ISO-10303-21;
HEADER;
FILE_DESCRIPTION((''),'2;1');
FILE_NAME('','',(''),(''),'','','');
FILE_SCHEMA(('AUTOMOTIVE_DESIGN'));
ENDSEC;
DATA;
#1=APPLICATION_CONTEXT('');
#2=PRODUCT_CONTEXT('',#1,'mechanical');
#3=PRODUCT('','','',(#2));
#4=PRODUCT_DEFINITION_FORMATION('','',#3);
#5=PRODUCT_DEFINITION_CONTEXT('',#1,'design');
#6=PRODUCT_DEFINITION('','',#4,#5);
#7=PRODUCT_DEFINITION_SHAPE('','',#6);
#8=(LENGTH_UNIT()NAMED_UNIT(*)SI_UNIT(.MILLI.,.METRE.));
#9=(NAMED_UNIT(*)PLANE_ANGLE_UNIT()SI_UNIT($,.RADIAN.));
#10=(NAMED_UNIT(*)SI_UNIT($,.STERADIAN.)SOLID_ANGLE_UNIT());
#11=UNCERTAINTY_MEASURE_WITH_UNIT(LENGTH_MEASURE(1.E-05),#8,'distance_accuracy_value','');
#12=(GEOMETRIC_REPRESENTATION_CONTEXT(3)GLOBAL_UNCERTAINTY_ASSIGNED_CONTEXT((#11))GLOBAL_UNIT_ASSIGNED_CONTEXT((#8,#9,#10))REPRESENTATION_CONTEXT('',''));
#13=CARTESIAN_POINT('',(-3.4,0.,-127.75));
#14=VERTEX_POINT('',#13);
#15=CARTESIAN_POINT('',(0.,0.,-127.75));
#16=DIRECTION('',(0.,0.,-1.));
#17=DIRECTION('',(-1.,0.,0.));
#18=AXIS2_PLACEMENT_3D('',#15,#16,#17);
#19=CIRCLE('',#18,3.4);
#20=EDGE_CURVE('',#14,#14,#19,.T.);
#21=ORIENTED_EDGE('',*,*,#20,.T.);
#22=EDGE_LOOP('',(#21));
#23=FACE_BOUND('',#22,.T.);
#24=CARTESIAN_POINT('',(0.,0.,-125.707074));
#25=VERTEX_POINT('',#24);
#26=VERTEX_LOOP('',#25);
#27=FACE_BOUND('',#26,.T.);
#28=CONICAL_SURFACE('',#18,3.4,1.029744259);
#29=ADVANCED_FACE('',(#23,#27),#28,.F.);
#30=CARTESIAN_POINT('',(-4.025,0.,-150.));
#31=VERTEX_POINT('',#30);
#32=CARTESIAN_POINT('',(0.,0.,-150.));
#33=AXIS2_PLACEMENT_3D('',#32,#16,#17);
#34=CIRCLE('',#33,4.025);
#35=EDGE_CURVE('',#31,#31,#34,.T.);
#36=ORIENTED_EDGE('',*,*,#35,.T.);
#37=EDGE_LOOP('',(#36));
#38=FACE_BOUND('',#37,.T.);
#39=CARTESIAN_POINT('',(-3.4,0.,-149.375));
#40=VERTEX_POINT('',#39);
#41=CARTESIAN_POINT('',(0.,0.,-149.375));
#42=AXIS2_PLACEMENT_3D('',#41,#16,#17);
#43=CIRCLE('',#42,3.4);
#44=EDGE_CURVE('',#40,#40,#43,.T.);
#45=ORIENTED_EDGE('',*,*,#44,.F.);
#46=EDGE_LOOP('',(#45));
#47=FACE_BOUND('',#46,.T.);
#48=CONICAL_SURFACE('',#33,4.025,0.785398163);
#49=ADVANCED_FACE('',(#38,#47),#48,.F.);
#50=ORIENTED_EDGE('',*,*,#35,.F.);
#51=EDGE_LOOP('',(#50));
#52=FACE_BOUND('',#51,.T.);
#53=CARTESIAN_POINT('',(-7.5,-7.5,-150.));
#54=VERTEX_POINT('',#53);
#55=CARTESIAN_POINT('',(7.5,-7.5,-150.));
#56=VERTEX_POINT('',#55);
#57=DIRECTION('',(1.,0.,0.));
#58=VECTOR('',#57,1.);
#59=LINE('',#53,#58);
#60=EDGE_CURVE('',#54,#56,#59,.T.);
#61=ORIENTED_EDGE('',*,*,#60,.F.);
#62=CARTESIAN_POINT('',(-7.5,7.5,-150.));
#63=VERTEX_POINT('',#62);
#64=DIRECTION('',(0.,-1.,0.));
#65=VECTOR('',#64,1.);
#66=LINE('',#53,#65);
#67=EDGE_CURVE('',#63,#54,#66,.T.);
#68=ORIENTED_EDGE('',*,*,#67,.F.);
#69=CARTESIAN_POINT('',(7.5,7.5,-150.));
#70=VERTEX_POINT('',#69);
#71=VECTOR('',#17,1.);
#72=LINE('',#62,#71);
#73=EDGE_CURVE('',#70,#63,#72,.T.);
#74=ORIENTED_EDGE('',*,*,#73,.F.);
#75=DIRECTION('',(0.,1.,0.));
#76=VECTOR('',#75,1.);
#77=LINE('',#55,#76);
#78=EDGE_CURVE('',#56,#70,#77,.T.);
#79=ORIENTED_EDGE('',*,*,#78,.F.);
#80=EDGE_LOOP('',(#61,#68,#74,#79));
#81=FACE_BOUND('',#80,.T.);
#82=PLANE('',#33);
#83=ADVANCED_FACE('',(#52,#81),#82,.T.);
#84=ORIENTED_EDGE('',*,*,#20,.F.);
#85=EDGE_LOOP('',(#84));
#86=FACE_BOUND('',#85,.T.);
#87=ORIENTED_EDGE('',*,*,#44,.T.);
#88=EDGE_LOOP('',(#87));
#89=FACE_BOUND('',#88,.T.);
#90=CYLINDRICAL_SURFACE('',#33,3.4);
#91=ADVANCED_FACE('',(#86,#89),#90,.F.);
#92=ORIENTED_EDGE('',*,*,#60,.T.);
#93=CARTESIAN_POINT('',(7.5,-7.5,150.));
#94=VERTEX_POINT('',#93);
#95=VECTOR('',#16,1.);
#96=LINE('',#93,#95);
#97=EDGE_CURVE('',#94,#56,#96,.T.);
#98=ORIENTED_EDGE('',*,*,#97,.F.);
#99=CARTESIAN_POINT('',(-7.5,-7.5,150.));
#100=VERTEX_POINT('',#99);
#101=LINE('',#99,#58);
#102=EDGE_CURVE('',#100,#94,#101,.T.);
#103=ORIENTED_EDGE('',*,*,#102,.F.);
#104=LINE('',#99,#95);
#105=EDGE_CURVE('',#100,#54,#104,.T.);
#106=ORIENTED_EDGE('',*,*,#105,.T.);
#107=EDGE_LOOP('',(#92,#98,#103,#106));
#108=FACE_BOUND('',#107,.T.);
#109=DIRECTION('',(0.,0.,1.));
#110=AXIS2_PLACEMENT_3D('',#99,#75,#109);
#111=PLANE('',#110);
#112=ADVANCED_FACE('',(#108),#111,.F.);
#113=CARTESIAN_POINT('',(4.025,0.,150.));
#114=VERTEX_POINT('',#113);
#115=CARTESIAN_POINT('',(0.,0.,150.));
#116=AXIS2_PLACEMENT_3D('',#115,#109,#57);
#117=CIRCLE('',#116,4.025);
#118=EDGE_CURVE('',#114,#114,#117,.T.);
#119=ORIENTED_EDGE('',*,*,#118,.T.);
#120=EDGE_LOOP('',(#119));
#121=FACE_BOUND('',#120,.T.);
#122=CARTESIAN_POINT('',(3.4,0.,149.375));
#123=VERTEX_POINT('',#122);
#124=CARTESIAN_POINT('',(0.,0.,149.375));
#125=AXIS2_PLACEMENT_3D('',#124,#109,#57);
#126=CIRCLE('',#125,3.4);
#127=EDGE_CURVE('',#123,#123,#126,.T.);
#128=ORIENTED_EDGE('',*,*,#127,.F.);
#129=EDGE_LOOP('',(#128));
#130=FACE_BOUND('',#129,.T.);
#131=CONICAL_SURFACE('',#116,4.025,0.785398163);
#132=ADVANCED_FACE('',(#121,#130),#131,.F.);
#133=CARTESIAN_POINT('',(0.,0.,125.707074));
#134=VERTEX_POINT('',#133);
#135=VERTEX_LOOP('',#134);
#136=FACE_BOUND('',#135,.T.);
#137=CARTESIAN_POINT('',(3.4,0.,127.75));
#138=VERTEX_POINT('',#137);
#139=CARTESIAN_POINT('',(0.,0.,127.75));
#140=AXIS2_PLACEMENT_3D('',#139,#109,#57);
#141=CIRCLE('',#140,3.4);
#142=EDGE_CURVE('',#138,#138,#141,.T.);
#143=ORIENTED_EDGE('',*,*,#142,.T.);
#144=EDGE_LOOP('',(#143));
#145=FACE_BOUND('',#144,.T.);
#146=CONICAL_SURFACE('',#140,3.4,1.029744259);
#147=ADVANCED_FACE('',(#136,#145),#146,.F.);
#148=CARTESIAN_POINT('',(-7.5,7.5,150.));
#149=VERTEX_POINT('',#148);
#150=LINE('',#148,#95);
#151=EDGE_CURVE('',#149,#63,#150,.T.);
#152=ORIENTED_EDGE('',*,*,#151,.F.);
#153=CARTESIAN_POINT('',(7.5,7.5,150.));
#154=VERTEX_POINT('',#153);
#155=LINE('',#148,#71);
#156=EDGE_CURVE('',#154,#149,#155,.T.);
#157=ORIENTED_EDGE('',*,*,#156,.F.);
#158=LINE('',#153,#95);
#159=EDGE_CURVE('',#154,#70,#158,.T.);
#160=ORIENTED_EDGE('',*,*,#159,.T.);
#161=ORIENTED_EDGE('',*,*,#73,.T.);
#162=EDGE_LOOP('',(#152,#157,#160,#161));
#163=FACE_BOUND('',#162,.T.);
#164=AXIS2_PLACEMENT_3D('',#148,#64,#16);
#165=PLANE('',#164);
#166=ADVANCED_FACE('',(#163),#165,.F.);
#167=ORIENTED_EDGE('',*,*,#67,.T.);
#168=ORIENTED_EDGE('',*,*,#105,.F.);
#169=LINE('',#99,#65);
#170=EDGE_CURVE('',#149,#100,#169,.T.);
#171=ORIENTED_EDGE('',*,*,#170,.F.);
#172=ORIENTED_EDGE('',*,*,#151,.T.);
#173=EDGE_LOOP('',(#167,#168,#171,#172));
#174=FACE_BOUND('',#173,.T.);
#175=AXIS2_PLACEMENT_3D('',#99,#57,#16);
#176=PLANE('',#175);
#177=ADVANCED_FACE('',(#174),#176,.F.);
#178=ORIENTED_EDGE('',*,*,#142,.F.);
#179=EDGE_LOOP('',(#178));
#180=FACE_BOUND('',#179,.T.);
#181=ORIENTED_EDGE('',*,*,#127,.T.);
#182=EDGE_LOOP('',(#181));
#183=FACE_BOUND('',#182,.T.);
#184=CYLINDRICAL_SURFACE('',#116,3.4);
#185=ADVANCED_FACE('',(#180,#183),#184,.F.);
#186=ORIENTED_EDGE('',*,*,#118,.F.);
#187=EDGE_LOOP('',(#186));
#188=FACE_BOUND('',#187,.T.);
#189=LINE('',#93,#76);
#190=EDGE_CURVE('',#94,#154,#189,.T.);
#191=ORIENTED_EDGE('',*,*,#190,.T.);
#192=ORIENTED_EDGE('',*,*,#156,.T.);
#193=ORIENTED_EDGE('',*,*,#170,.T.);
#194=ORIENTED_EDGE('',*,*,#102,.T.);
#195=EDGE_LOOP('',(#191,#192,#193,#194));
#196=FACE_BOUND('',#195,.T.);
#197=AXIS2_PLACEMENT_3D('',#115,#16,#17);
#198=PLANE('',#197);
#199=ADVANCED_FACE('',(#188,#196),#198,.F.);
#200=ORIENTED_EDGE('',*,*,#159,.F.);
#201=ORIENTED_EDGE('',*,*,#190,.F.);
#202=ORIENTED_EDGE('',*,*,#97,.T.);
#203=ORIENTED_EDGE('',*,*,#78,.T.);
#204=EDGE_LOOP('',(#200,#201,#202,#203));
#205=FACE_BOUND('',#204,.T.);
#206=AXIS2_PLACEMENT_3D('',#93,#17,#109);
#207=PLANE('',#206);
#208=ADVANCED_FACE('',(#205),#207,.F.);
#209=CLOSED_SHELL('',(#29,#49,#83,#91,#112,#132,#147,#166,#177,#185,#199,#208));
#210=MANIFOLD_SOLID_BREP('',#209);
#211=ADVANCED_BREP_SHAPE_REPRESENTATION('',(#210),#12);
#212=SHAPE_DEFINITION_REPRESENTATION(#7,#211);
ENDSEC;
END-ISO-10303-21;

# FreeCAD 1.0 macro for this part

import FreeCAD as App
import Part
import Sketcher

V = App.Vector
Q = App.Units.Quantity


def add_polygon(sketch, points):
    """Adds a closed chain of lines whose ends are joined by coincident constraints."""
    first, n = sketch.GeometryCount, len(points)
    for a, b in zip(points, points[1:] + points[:1]):
        sketch.addGeometry(Part.LineSegment(App.Vector(*a, 0), App.Vector(*b, 0)), False)
    for i in range(n):
        sketch.addConstraint(Sketcher.Constraint("Coincident", first + i, 2, first + (i + 1) % n, 1))

doc = App.newDocument("Part")
params = doc.addObject("Spreadsheet::Sheet", "Params")
for row, (alias, value) in enumerate([
    ("sketch1_width", "15 mm"),
    ("pad1_length", "300 mm"),
    ("groove_angle", "360 deg"),
], start=1):
    params.set(f"A{row}", alias)
    params.set(f"B{row}", "=" + value)
    params.setAlias(f"B{row}", alias)

body = doc.addObject("PartDesign::Body", "Body")

# Sketch on XY plane
sketch1 = body.newObject("Sketcher::SketchObject", "Sketch")
sketch1.AttachmentSupport = (doc.getObject("XY_Plane"), [""])
sketch1.MapMode = "FlatFace"
add_polygon(sketch1, [(-8, 8), (-8, -8), (8, -8), (8, 8)])  # lines 0-3
sketch1.addConstraint([
    Sketcher.Constraint("Vertical", 0),
    Sketcher.Constraint("Horizontal", 1),
    Sketcher.Constraint("Vertical", 2),
    Sketcher.Constraint("Horizontal", 3),
    Sketcher.Constraint("Symmetric", 0, 2, 2, 2, -1, 1),
    Sketcher.Constraint("Equal", 3, 0),
    Sketcher.Constraint("DistanceX", 1, 1, 1, 2, 15.0),
])
sketch1.setExpression("Constraints[10]", "Params.sketch1_width")
pad1 = body.newObject("PartDesign::Pad", "Pad")
pad1.Profile = sketch1
pad1.setExpression("Length", "Params.pad1_length")
pad1.Midplane = True

# Sketch on YZ plane
sketch2 = body.newObject("Sketcher::SketchObject", "Sketch001")
sketch2.AttachmentSupport = (doc.getObject("YZ_Plane"), [""])
sketch2.MapMode = "FlatFace"
add_polygon(sketch2, [(0, 125.7), (0, 150), (-4, 150), (-3.4, 149.4), (-3.4, 127.8)])  # lines 0-4
sketch2.addConstraint([
    Sketcher.Constraint("Vertical", 0),
    Sketcher.Constraint("Horizontal", 1),
    Sketcher.Constraint("Vertical", 3),
    Sketcher.Constraint("PointOnObject", 0, 2, -2),
    Sketcher.Constraint("Angle", 2, Q("-45 deg")),
    Sketcher.Constraint("Angle", 4, Q("-31 deg")),
    Sketcher.Constraint("DistanceY", -1, 1, 0, 2, 150.0),
    Sketcher.Constraint("DistanceX", 2, 2, -1, 1, 3.4),
    Sketcher.Constraint("DistanceX", 1, 2, 1, 1, 4.025),
    Sketcher.Constraint("DistanceY", 3, 2, 3, 1, 21.625),
])
groove = body.newObject("PartDesign::Groove", "Groove")
groove.Profile = sketch2
groove.ReferenceAxis = (sketch2, ["V_Axis"])
groove.setExpression("Angle", "Params.groove_angle")
doc.recompute()

mirrored = body.newObject("PartDesign::Mirrored", "Mirrored")
mirrored.Originals = [groove]
mirrored.MirrorPlane = (doc.getObject("XY_Plane"), [""])
body.Tip = mirrored

doc.recompute()
